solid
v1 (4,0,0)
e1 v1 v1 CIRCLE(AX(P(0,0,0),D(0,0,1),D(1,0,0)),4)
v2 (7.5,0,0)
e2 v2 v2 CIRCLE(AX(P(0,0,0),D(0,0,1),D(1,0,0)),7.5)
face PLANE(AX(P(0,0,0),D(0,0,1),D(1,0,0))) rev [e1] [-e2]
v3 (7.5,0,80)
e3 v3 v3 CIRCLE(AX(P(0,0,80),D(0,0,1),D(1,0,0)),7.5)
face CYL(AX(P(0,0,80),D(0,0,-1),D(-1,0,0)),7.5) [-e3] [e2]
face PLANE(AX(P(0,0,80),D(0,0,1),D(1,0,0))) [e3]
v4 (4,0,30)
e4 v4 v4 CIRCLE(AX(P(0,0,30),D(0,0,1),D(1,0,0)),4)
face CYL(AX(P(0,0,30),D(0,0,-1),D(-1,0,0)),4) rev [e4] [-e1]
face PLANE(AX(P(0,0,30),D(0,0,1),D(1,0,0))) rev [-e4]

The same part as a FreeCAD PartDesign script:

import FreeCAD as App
import Part
import Sketcher

V = App.Vector
Q = App.Units.Quantity

doc = App.newDocument("Part")
params = doc.addObject("Spreadsheet::Sheet", "Params")
for row, (alias, value) in enumerate([
    ("sketch1_diameter", "15 mm"),
    ("pad1_length", "80 mm"),
    ("sketch2_diameter", "8 mm"),
    ("pocket1_length", "30 mm"),
], start=1):
    params.set(f"A{row}", alias)
    params.set(f"B{row}", "=" + value)
    params.setAlias(f"B{row}", alias)

body = doc.addObject("PartDesign::Body", "Body")

# Sketch on XY plane
sketch1 = body.newObject("Sketcher::SketchObject", "Sketch")
sketch1.AttachmentSupport = (doc.getObject("XY_Plane"), [""])
sketch1.MapMode = "FlatFace"
sketch1.addGeometry(Part.Circle(V(0, 0, 0), V(0, 0, 1), 7.5), False)
sketch1.addConstraint(Sketcher.Constraint("Coincident", 0, 3, -1, 1))
sketch1.addConstraint(Sketcher.Constraint("Diameter", 0, Q("15 mm")))
sketch1.setExpression("Constraints[1]", "Params.sketch1_diameter")
pad1 = body.newObject("PartDesign::Pad", "Pad")
pad1.Profile = sketch1
pad1.setExpression("Length", "Params.pad1_length")

# Sketch on XY plane
sketch2 = body.newObject("Sketcher::SketchObject", "Sketch001")
sketch2.AttachmentSupport = (doc.getObject("XY_Plane"), [""])
sketch2.MapMode = "FlatFace"
sketch2.addGeometry(Part.Circle(V(0, 0, 0), V(0, 0, 1), 4), False)
sketch2.addConstraint(Sketcher.Constraint("Coincident", 0, 3, -1, 1))
sketch2.addConstraint(Sketcher.Constraint("Diameter", 0, Q("8 mm")))
sketch2.setExpression("Constraints[1]", "Params.sketch2_diameter")
pocket1 = body.newObject("PartDesign::Pocket", "Pocket")
pocket1.Profile = sketch2
pocket1.setExpression("Length", "Params.pocket1_length")
pocket1.Reversed = True

doc.recompute()
